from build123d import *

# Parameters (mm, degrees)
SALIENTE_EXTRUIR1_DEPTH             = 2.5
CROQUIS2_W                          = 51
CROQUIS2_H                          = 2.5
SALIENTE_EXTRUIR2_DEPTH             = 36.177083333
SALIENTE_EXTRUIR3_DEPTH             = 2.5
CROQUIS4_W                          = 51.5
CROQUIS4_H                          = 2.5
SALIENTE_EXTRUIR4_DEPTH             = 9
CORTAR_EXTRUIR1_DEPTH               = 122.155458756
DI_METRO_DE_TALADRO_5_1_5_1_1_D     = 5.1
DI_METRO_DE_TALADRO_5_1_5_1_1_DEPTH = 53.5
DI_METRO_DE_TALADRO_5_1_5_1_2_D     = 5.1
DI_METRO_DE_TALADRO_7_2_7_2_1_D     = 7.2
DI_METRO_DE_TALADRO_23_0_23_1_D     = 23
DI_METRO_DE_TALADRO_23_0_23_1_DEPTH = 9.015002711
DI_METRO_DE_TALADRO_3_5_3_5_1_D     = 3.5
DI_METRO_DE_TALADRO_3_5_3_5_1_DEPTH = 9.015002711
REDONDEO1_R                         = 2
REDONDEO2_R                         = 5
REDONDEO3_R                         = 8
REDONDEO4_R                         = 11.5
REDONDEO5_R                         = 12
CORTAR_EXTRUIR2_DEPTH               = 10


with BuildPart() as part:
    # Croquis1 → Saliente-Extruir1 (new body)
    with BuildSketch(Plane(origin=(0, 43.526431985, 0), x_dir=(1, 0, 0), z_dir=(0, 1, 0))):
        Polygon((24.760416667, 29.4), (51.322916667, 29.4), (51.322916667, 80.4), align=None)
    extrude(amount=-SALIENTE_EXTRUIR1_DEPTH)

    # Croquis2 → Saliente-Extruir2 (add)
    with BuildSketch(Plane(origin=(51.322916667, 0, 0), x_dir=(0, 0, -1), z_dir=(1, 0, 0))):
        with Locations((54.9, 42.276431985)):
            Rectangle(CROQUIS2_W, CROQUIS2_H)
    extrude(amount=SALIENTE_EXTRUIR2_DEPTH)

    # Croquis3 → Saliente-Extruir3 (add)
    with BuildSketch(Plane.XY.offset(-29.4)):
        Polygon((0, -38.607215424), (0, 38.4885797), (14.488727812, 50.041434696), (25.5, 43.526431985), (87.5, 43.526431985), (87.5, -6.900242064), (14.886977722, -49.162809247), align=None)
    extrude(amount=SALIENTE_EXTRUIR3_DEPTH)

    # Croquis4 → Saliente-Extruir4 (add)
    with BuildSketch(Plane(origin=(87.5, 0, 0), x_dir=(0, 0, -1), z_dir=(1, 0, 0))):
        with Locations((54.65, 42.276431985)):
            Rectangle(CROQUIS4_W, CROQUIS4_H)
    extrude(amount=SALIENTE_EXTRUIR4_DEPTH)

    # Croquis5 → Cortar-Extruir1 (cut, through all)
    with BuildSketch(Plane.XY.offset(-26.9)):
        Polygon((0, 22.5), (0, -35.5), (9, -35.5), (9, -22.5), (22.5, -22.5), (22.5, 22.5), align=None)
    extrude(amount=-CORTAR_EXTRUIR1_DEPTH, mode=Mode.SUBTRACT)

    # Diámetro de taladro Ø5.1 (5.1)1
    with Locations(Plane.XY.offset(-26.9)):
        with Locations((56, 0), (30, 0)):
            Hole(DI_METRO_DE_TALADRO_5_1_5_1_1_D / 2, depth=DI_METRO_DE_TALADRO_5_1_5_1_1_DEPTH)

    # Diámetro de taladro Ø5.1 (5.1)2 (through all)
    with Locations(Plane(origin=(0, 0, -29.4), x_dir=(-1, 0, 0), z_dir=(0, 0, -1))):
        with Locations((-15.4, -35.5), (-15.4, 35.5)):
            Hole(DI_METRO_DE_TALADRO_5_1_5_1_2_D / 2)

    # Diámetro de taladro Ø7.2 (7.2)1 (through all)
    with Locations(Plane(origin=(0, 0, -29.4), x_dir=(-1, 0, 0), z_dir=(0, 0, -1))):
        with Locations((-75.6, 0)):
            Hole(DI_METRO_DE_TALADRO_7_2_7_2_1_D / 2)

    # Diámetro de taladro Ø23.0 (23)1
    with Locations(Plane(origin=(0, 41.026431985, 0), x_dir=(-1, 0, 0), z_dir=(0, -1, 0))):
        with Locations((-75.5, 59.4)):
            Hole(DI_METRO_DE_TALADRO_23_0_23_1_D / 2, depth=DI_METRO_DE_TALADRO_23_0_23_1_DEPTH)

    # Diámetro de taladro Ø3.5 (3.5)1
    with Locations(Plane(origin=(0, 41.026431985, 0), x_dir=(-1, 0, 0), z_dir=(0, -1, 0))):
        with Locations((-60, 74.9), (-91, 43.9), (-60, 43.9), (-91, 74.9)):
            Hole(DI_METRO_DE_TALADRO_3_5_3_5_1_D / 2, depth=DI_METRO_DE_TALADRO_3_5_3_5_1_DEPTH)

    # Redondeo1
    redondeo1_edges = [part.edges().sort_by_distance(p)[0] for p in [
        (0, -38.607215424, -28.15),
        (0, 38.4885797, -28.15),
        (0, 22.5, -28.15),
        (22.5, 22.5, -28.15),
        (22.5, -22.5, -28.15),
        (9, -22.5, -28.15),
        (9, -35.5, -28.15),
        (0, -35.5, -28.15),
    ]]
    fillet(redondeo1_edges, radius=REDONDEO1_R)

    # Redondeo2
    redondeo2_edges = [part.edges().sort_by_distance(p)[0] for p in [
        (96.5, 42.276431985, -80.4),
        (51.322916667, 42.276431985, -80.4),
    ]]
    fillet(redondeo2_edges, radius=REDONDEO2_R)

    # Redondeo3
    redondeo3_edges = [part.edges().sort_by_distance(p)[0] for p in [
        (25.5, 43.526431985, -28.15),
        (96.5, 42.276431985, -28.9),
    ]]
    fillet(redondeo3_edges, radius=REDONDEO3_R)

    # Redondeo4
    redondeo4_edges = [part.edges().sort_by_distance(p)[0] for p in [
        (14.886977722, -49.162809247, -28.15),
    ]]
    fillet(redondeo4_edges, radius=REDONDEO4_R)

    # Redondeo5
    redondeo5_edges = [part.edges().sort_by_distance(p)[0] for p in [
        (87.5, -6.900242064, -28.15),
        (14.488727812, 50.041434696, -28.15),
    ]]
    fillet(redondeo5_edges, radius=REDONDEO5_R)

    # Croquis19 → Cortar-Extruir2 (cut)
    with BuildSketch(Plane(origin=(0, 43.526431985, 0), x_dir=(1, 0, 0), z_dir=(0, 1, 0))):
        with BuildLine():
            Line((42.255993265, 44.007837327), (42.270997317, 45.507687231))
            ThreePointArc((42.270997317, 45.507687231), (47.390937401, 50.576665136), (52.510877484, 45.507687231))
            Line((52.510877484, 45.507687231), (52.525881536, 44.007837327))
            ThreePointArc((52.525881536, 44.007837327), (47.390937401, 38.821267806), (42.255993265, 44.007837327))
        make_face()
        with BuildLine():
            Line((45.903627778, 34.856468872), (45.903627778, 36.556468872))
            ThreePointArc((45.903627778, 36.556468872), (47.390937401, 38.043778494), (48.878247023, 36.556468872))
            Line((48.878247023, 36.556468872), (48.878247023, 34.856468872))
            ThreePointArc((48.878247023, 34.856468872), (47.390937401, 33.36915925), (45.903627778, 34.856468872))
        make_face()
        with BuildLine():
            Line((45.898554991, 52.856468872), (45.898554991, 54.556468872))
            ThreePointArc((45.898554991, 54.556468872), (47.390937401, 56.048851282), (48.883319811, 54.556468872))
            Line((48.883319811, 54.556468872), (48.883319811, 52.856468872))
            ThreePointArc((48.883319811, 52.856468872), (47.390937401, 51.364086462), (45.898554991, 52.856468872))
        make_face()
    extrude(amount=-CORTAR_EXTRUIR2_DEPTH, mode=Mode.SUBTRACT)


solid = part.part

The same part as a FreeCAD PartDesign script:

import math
import FreeCAD as App
import Part
import Sketcher


def edges_at(feature, points):
    """Names of the edges that pass closest to the given points."""
    edges = feature.Shape.Edges
    near = lambda p: min(range(len(edges)), key=lambda i: edges[i].distToShape(Part.Vertex(*p))[0])
    return sorted({f"Edge{near(p) + 1}" for p in points})

doc = App.newDocument("Part")
body = doc.addObject("PartDesign::Body", "Body")

# Sketch on XZ plane
sketch1 = body.newObject("Sketcher::SketchObject", "Sketch")
sketch1.AttachmentSupport = (doc.getObject("XZ_Plane"), [""])
sketch1.MapMode = "FlatFace"
sketch1.AttachmentOffset = App.Placement(App.Vector(0, 0, -43.526432), App.Rotation())
sketch1.addGeometry(Part.LineSegment(App.Vector(25, -29, 0), App.Vector(51, -29, 0)), False)
sketch1.addGeometry(Part.LineSegment(App.Vector(51, -29, 0), App.Vector(51, -80, 0)), False)
sketch1.addGeometry(Part.LineSegment(App.Vector(51, -80, 0), App.Vector(25, -29, 0)), False)
sketch1.addConstraint(Sketcher.Constraint("Coincident", 0, 2, 1, 1))
sketch1.addConstraint(Sketcher.Constraint("Coincident", 1, 2, 2, 1))
sketch1.addConstraint(Sketcher.Constraint("Coincident", 2, 2, 0, 1))
sketch1.addConstraint(Sketcher.Constraint("Horizontal", 0))
sketch1.addConstraint(Sketcher.Constraint("Vertical", 1))
sketch1.addConstraint(Sketcher.Constraint("DistanceY", 1, 2, 1, 1, 51.0))
sketch1.addConstraint(Sketcher.Constraint("DistanceY", 0, 2, -1, 1, 29.4))
sketch1.addConstraint(Sketcher.Constraint("DistanceX", 0, 1, 0, 2, 26.5625))
sketch1.addConstraint(Sketcher.Constraint("DistanceX", -1, 1, 0, 2, 51.322917))
pad1 = body.newObject("PartDesign::Pad", "Pad")
pad1.Profile = sketch1
pad1.Length = 2.5

# Sketch on YZ plane
sketch2 = body.newObject("Sketcher::SketchObject", "Sketch001")
sketch2.AttachmentSupport = (doc.getObject("YZ_Plane"), [""])
sketch2.MapMode = "FlatFace"
sketch2.AttachmentOffset = App.Placement(App.Vector(0, 0, 51.322917), App.Rotation())
sketch2.addGeometry(Part.LineSegment(App.Vector(43.5, -29.4, 0), App.Vector(41, -29.4, 0)), False)
sketch2.addGeometry(Part.LineSegment(App.Vector(41, -29.4, 0), App.Vector(41, -80.4, 0)), False)
sketch2.addGeometry(Part.LineSegment(App.Vector(41, -80.4, 0), App.Vector(43.5, -80.4, 0)), False)
sketch2.addGeometry(Part.LineSegment(App.Vector(43.5, -80.4, 0), App.Vector(43.5, -29.4, 0)), False)
sketch2.addConstraint(Sketcher.Constraint("Coincident", 0, 2, 1, 1))
sketch2.addConstraint(Sketcher.Constraint("Coincident", 1, 2, 2, 1))
sketch2.addConstraint(Sketcher.Constraint("Coincident", 2, 2, 3, 1))
sketch2.addConstraint(Sketcher.Constraint("Coincident", 3, 2, 0, 1))
sketch2.addConstraint(Sketcher.Constraint("Horizontal", 0))
sketch2.addConstraint(Sketcher.Constraint("Vertical", 1))
sketch2.addConstraint(Sketcher.Constraint("Horizontal", 2))
sketch2.addConstraint(Sketcher.Constraint("Vertical", 3))
sketch2.addConstraint(Sketcher.Constraint("DistanceY", 1, 2, 1, 1, 51.0))
sketch2.addConstraint(Sketcher.Constraint("DistanceX", 0, 2, 0, 1, 2.5))
sketch2.addConstraint(Sketcher.Constraint("DistanceY", 0, 2, -1, 1, 29.4))
sketch2.addConstraint(Sketcher.Constraint("DistanceX", -1, 1, 0, 2, 41.026432))
pad2 = body.newObject("PartDesign::Pad", "Pad001")
pad2.Profile = sketch2
pad2.Length = 36.177083

# Sketch on XY plane
sketch3 = body.newObject("Sketcher::SketchObject", "Sketch002")
sketch3.AttachmentSupport = (doc.getObject("XY_Plane"), [""])
sketch3.MapMode = "FlatFace"
sketch3.AttachmentOffset = App.Placement(App.Vector(0, 0, -29.4), App.Rotation())
sketch3.addGeometry(Part.LineSegment(App.Vector(0, 38, 0), App.Vector(0, -39, 0)), False)
sketch3.addGeometry(Part.LineSegment(App.Vector(0, -39, 0), App.Vector(15, -49, 0)), False)
sketch3.addGeometry(Part.LineSegment(App.Vector(15, -49, 0), App.Vector(88, -7, 0)), False)
sketch3.addGeometry(Part.LineSegment(App.Vector(88, -7, 0), App.Vector(88, 44, 0)), False)
sketch3.addGeometry(Part.LineSegment(App.Vector(88, 44, 0), App.Vector(26, 44, 0)), False)
sketch3.addGeometry(Part.LineSegment(App.Vector(26, 44, 0), App.Vector(14, 50, 0)), False)
sketch3.addGeometry(Part.LineSegment(App.Vector(14, 50, 0), App.Vector(0, 38, 0)), False)
sketch3.addConstraint(Sketcher.Constraint("Coincident", 0, 2, 1, 1))
sketch3.addConstraint(Sketcher.Constraint("Coincident", 1, 2, 2, 1))
sketch3.addConstraint(Sketcher.Constraint("Coincident", 2, 2, 3, 1))
sketch3.addConstraint(Sketcher.Constraint("Coincident", 3, 2, 4, 1))
sketch3.addConstraint(Sketcher.Constraint("Coincident", 4, 2, 5, 1))
sketch3.addConstraint(Sketcher.Constraint("Coincident", 5, 2, 6, 1))
sketch3.addConstraint(Sketcher.Constraint("Coincident", 6, 2, 0, 1))
sketch3.addConstraint(Sketcher.Constraint("Vertical", 0))
sketch3.addConstraint(Sketcher.Constraint("Vertical", 3))
sketch3.addConstraint(Sketcher.Constraint("Horizontal", 4))
sketch3.addConstraint(Sketcher.Constraint("PointOnObject", 0, 2, -2))
sketch3.addConstraint(Sketcher.Constraint("DistanceX", 4, 2, 4, 1, 62.0))
sketch3.addConstraint(Sketcher.Constraint("DistanceX", -1, 1, 2, 2, 87.5))
sketch3.addConstraint(Sketcher.Constraint("Distance", 2, 84.01652))
sketch3.addConstraint(Sketcher.Constraint("Distance", 5, 12.794271))
sketch3.addConstraint(Sketcher.Constraint("Distance", 6, 18.530831))
sketch3.addConstraint(Sketcher.Constraint("DistanceY", 0, 2, 0, 1, 77.095795))
sketch3.addConstraint(Sketcher.Constraint("DistanceY", 3, 1, 3, 2, 50.426674))
sketch3.addConstraint(Sketcher.Constraint("DistanceY", 1, 2, -1, 1, 49.162809))
sketch3.addConstraint(Sketcher.Constraint("DistanceY", -1, 1, 3, 2, 43.526432))
sketch3.addConstraint(Sketcher.Constraint("DistanceY", -1, 1, 6, 2, 38.48858))
pad3 = body.newObject("PartDesign::Pad", "Pad002")
pad3.Profile = sketch3
pad3.Length = 2.5

# Sketch on YZ plane
sketch4 = body.newObject("Sketcher::SketchObject", "Sketch003")
sketch4.AttachmentSupport = (doc.getObject("YZ_Plane"), [""])
sketch4.MapMode = "FlatFace"
sketch4.AttachmentOffset = App.Placement(App.Vector(0, 0, 87.5), App.Rotation())
sketch4.addGeometry(Part.LineSegment(App.Vector(43.5, -28.9, 0), App.Vector(41, -28.9, 0)), False)
sketch4.addGeometry(Part.LineSegment(App.Vector(41, -28.9, 0), App.Vector(41, -80.4, 0)), False)
sketch4.addGeometry(Part.LineSegment(App.Vector(41, -80.4, 0), App.Vector(43.5, -80.4, 0)), False)
sketch4.addGeometry(Part.LineSegment(App.Vector(43.5, -80.4, 0), App.Vector(43.5, -28.9, 0)), False)
sketch4.addConstraint(Sketcher.Constraint("Coincident", 0, 2, 1, 1))
sketch4.addConstraint(Sketcher.Constraint("Coincident", 1, 2, 2, 1))
sketch4.addConstraint(Sketcher.Constraint("Coincident", 2, 2, 3, 1))
sketch4.addConstraint(Sketcher.Constraint("Coincident", 3, 2, 0, 1))
sketch4.addConstraint(Sketcher.Constraint("Horizontal", 0))
sketch4.addConstraint(Sketcher.Constraint("Vertical", 1))
sketch4.addConstraint(Sketcher.Constraint("Horizontal", 2))
sketch4.addConstraint(Sketcher.Constraint("Vertical", 3))
sketch4.addConstraint(Sketcher.Constraint("DistanceX", 0, 2, 0, 1, 2.5))
sketch4.addConstraint(Sketcher.Constraint("DistanceY", 1, 2, 1, 1, 51.5))
sketch4.addConstraint(Sketcher.Constraint("DistanceY", 0, 2, -1, 1, 28.9))
sketch4.addConstraint(Sketcher.Constraint("DistanceX", -1, 1, 0, 2, 41.026432))
pad4 = body.newObject("PartDesign::Pad", "Pad003")
pad4.Profile = sketch4
pad4.Length = 9

# Sketch on XY plane
sketch5 = body.newObject("Sketcher::SketchObject", "Sketch004")
sketch5.AttachmentSupport = (doc.getObject("XY_Plane"), [""])
sketch5.MapMode = "FlatFace"
sketch5.AttachmentOffset = App.Placement(App.Vector(0, 0, -26.9), App.Rotation())
sketch5.addGeometry(Part.LineSegment(App.Vector(0, 22, 0), App.Vector(0, -36, 0)), False)
sketch5.addGeometry(Part.LineSegment(App.Vector(0, -36, 0), App.Vector(9, -36, 0)), False)
sketch5.addGeometry(Part.LineSegment(App.Vector(9, -36, 0), App.Vector(9, -22, 0)), False)
sketch5.addGeometry(Part.LineSegment(App.Vector(9, -22, 0), App.Vector(22, -22, 0)), False)
sketch5.addGeometry(Part.LineSegment(App.Vector(22, -22, 0), App.Vector(22, 22, 0)), False)
sketch5.addGeometry(Part.LineSegment(App.Vector(22, 22, 0), App.Vector(0, 22, 0)), False)
sketch5.addConstraint(Sketcher.Constraint("Coincident", 0, 2, 1, 1))
sketch5.addConstraint(Sketcher.Constraint("Coincident", 1, 2, 2, 1))
sketch5.addConstraint(Sketcher.Constraint("Coincident", 2, 2, 3, 1))
sketch5.addConstraint(Sketcher.Constraint("Coincident", 3, 2, 4, 1))
sketch5.addConstraint(Sketcher.Constraint("Coincident", 4, 2, 5, 1))
sketch5.addConstraint(Sketcher.Constraint("Coincident", 5, 2, 0, 1))
sketch5.addConstraint(Sketcher.Constraint("Vertical", 0))
sketch5.addConstraint(Sketcher.Constraint("Horizontal", 1))
sketch5.addConstraint(Sketcher.Constraint("Vertical", 2))
sketch5.addConstraint(Sketcher.Constraint("Horizontal", 3))
sketch5.addConstraint(Sketcher.Constraint("Vertical", 4))
sketch5.addConstraint(Sketcher.Constraint("Horizontal", 5))
sketch5.addConstraint(Sketcher.Constraint("PointOnObject", 0, 2, -2))
sketch5.addConstraint(Sketcher.Constraint("DistanceX", 1, 1, 1, 2, 9.0))
sketch5.addConstraint(Sketcher.Constraint("DistanceY", 0, 2, 0, 1, 58.0))
sketch5.addConstraint(Sketcher.Constraint("DistanceY", 2, 1, 2, 2, 13.0))
sketch5.addConstraint(Sketcher.Constraint("DistanceX", 3, 1, 3, 2, 13.5))
sketch5.addConstraint(Sketcher.Constraint("DistanceY", 0, 2, -1, 1, 35.5))
pocket1 = body.newObject("PartDesign::Pocket", "Pocket")
pocket1.Profile = sketch5
pocket1.Type = "ThroughAll"

# Sketch on XY plane
sketch6 = body.newObject("Sketcher::SketchObject", "Sketch005")
sketch6.AttachmentSupport = (doc.getObject("XY_Plane"), [""])
sketch6.MapMode = "FlatFace"
sketch6.AttachmentOffset = App.Placement(App.Vector(0, 0, -26.9), App.Rotation())
sketch6.addGeometry(Part.Circle(App.Vector(56, 0, 0), App.Vector(0, 0, 1), 2.5), False)
sketch6.addGeometry(Part.Circle(App.Vector(30, 0, 0), App.Vector(0, 0, 1), 2.5), False)
sketch6.addConstraint(Sketcher.Constraint("Equal", 0, 1))
sketch6.addConstraint(Sketcher.Constraint("PointOnObject", 0, 3, -1))
sketch6.addConstraint(Sketcher.Constraint("PointOnObject", 1, 3, -1))
sketch6.addConstraint(Sketcher.Constraint("Diameter", 0, 5.1))
sketch6.addConstraint(Sketcher.Constraint("DistanceX", -1, 1, 0, 3, 56.0))
sketch6.addConstraint(Sketcher.Constraint("DistanceX", -1, 1, 1, 3, 30.0))
doc.recompute()
hole = body.newObject("PartDesign::Hole", "Hole")
hole.Profile = sketch6
hole.ThreadType = "None"
hole.Diameter = 5.1
hole.DepthType = "Dimension"
hole.Depth = 53.5
hole.DrillPoint = "Flat"

# Sketch on XY plane
sketch7 = body.newObject("Sketcher::SketchObject", "Sketch006")
sketch7.AttachmentSupport = (doc.getObject("XY_Plane"), [""])
sketch7.MapMode = "FlatFace"
sketch7.AttachmentOffset = App.Placement(App.Vector(0, 0, -29.4), App.Rotation())
sketch7.addGeometry(Part.Circle(App.Vector(15.4, -35.5, 0), App.Vector(0, 0, 1), 2.5), False)
sketch7.addGeometry(Part.Circle(App.Vector(15.4, 35.5, 0), App.Vector(0, 0, 1), 2.5), False)
sketch7.addConstraint(Sketcher.Constraint("Equal", 0, 1))
sketch7.addConstraint(Sketcher.Constraint("Symmetric", 0, 3, 1, 3, -1))
sketch7.addConstraint(Sketcher.Constraint("Diameter", 0, 5.1))
sketch7.addConstraint(Sketcher.Constraint("DistanceY", 0, 3, 1, 3, 71.0))
sketch7.addConstraint(Sketcher.Constraint("DistanceX", -1, 1, 0, 3, 15.4))
doc.recompute()
hole2 = body.newObject("PartDesign::Hole", "Hole001")
hole2.Profile = sketch7
hole2.ThreadType = "None"
hole2.Diameter = 5.1
hole2.DepthType = "ThroughAll"
hole2.Reversed = True

# Sketch on XY plane
sketch8 = body.newObject("Sketcher::SketchObject", "Sketch007")
sketch8.AttachmentSupport = (doc.getObject("XY_Plane"), [""])
sketch8.MapMode = "FlatFace"
sketch8.AttachmentOffset = App.Placement(App.Vector(0, 0, -29.4), App.Rotation())
sketch8.addGeometry(Part.Circle(App.Vector(75.6, 0, 0), App.Vector(0, 0, 1), 3.6), False)
sketch8.addConstraint(Sketcher.Constraint("PointOnObject", 0, 3, -1))
sketch8.addConstraint(Sketcher.Constraint("Diameter", 0, 7.2))
sketch8.addConstraint(Sketcher.Constraint("DistanceX", -1, 1, 0, 3, 75.6))
doc.recompute()
hole3 = body.newObject("PartDesign::Hole", "Hole002")
hole3.Profile = sketch8
hole3.ThreadType = "None"
hole3.Diameter = 7.2
hole3.DepthType = "ThroughAll"
hole3.Reversed = True

# Sketch on XZ plane
sketch9 = body.newObject("Sketcher::SketchObject", "Sketch008")
sketch9.AttachmentSupport = (doc.getObject("XZ_Plane"), [""])
sketch9.MapMode = "FlatFace"
sketch9.AttachmentOffset = App.Placement(App.Vector(0, 0, -41.026432), App.Rotation())
sketch9.addGeometry(Part.Circle(App.Vector(76, -59, 0), App.Vector(0, 0, 1), 12), False)
sketch9.addConstraint(Sketcher.Constraint("Diameter", 0, 23.0))
sketch9.addConstraint(Sketcher.Constraint("DistanceX", -1, 1, 0, 3, 75.5))
sketch9.addConstraint(Sketcher.Constraint("DistanceY", 0, 3, -1, 1, 59.4))
doc.recompute()
hole4 = body.newObject("PartDesign::Hole", "Hole003")
hole4.Profile = sketch9
hole4.ThreadType = "None"
hole4.Diameter = 23
hole4.DepthType = "Dimension"
hole4.Depth = 9.015003
hole4.DrillPoint = "Flat"

# Sketch on XZ plane
sketch10 = body.newObject("Sketcher::SketchObject", "Sketch009")
sketch10.AttachmentSupport = (doc.getObject("XZ_Plane"), [""])
sketch10.MapMode = "FlatFace"
sketch10.AttachmentOffset = App.Placement(App.Vector(0, 0, -41.026432), App.Rotation())
sketch10.addGeometry(Part.Circle(App.Vector(60, -74.9, 0), App.Vector(0, 0, 1), 1.8), False)
sketch10.addGeometry(Part.Circle(App.Vector(91, -43.9, 0), App.Vector(0, 0, 1), 1.8), False)
sketch10.addGeometry(Part.Circle(App.Vector(60, -43.9, 0), App.Vector(0, 0, 1), 1.8), False)
sketch10.addGeometry(Part.Circle(App.Vector(91, -74.9, 0), App.Vector(0, 0, 1), 1.8), False)
sketch10.addConstraint(Sketcher.Constraint("Equal", 0, 1))
sketch10.addConstraint(Sketcher.Constraint("Equal", 1, 2))
sketch10.addConstraint(Sketcher.Constraint("Equal", 2, 3))
sketch10.addConstraint(Sketcher.Constraint("Horizontal", 1, 3, 2, 3))
sketch10.addConstraint(Sketcher.Constraint("Horizontal", 0, 3, 3, 3))
sketch10.addConstraint(Sketcher.Constraint("Vertical", 0, 3, 2, 3))
sketch10.addConstraint(Sketcher.Constraint("Vertical", 1, 3, 3, 3))
sketch10.addConstraint(Sketcher.Constraint("Diameter", 0, 3.5))
sketch10.addConstraint(Sketcher.Constraint("DistanceX", -1, 1, 0, 3, 60.0))
sketch10.addConstraint(Sketcher.Constraint("DistanceX", -1, 1, 1, 3, 91.0))
sketch10.addConstraint(Sketcher.Constraint("DistanceY", 0, 3, 1, 3, 31.0))
sketch10.addConstraint(Sketcher.Constraint("DistanceY", 0, 3, -1, 1, 74.9))
doc.recompute()
hole5 = body.newObject("PartDesign::Hole", "Hole004")
hole5.Profile = sketch10
hole5.ThreadType = "None"
hole5.Diameter = 3.5
hole5.DepthType = "Dimension"
hole5.Depth = 9.015003
hole5.DrillPoint = "Flat"
doc.recompute()

fillet = body.newObject("PartDesign::Fillet", "Fillet")
fillet.Base = (hole5, edges_at(hole5, [
    (0, -38.607, -28.15),
    (0, 38.489, -28.15),
    (0, 22.5, -28.15),
    (22.5, 22.5, -28.15),
    (22.5, -22.5, -28.15),
    (9, -22.5, -28.15),
    (9, -35.5, -28.15),
    (0, -35.5, -28.15),
]))
fillet.Radius = 2
doc.recompute()

fillet2 = body.newObject("PartDesign::Fillet", "Fillet001")
fillet2.Base = (fillet, edges_at(fillet, [(96.5, 42.276, -80.4), (51.323, 42.276, -80.4)]))
fillet2.Radius = 5
doc.recompute()

fillet3 = body.newObject("PartDesign::Fillet", "Fillet002")
fillet3.Base = (fillet2, edges_at(fillet2, [(25.5, 43.526, -28.15), (96.5, 42.276, -28.9)]))
fillet3.Radius = 8
doc.recompute()

fillet4 = body.newObject("PartDesign::Fillet", "Fillet003")
fillet4.Base = (fillet3, edges_at(fillet3, [(14.887, -49.163, -28.15)]))
fillet4.Radius = 11.5
doc.recompute()

fillet5 = body.newObject("PartDesign::Fillet", "Fillet004")
fillet5.Base = (fillet4, edges_at(fillet4, [(87.5, -6.9, -28.15), (14.489, 50.041, -28.15)]))
fillet5.Radius = 12

# Sketch on XZ plane
sketch11 = body.newObject("Sketcher::SketchObject", "Sketch010")
sketch11.AttachmentSupport = (doc.getObject("XZ_Plane"), [""])
sketch11.MapMode = "FlatFace"
sketch11.AttachmentOffset = App.Placement(App.Vector(0, 0, -43.526432), App.Rotation())
sketch11.addGeometry(Part.LineSegment(App.Vector(42.3, -45.5, 0), App.Vector(42.3, -44, 0)), False)
sketch11.addGeometry(Part.ArcOfCircle(Part.Circle(App.Vector(47.4, -44, 0), App.Vector(0, 0, 1), 5.1), math.radians(-1), math.radians(181)), False)
sketch11.addGeometry(Part.LineSegment(App.Vector(52.5, -44, 0), App.Vector(52.5, -45.5, 0)), False)
sketch11.addGeometry(Part.ArcOfCircle(Part.Circle(App.Vector(47.4, -45.5, 0), App.Vector(0, 0, 1), 5.1), math.radians(-179), math.radians(-1)), False)
sketch11.addGeometry(Part.LineSegment(App.Vector(45.9, -36.6, 0), App.Vector(45.9, -34.9, 0)), False)
sketch11.addGeometry(Part.ArcOfCircle(Part.Circle(App.Vector(47.4, -34.9, 0), App.Vector(0, 0, 1), 1.5), math.radians(0), math.radians(180)), False)
sketch11.addGeometry(Part.LineSegment(App.Vector(48.9, -34.9, 0), App.Vector(48.9, -36.6, 0)), False)
sketch11.addGeometry(Part.ArcOfCircle(Part.Circle(App.Vector(47.4, -36.6, 0), App.Vector(0, 0, 1), 1.5), math.radians(180), math.radians(360)), False)
sketch11.addGeometry(Part.LineSegment(App.Vector(45.9, -54.6, 0), App.Vector(45.9, -52.9, 0)), False)
sketch11.addGeometry(Part.ArcOfCircle(Part.Circle(App.Vector(47.4, -52.9, 0), App.Vector(0, 0, 1), 1.5), math.radians(0), math.radians(180)), False)
sketch11.addGeometry(Part.LineSegment(App.Vector(48.9, -52.9, 0), App.Vector(48.9, -54.6, 0)), False)
sketch11.addGeometry(Part.ArcOfCircle(Part.Circle(App.Vector(47.4, -54.6, 0), App.Vector(0, 0, 1), 1.5), math.radians(180), math.radians(360)), False)
sketch11.addConstraint(Sketcher.Constraint("Tangent", 0, 2, 1, 2))
sketch11.addConstraint(Sketcher.Constraint("Tangent", 1, 1, 2, 1))
sketch11.addConstraint(Sketcher.Constraint("Tangent", 2, 2, 3, 2))
sketch11.addConstraint(Sketcher.Constraint("Tangent", 3, 1, 0, 1))
sketch11.addConstraint(Sketcher.Constraint("Tangent", 4, 2, 5, 2))
sketch11.addConstraint(Sketcher.Constraint("Tangent", 5, 1, 6, 1))
sketch11.addConstraint(Sketcher.Constraint("Tangent", 6, 2, 7, 2))
sketch11.addConstraint(Sketcher.Constraint("Tangent", 7, 1, 4, 1))
sketch11.addConstraint(Sketcher.Constraint("Tangent", 8, 2, 9, 2))
sketch11.addConstraint(Sketcher.Constraint("Tangent", 9, 1, 10, 1))
sketch11.addConstraint(Sketcher.Constraint("Tangent", 10, 2, 11, 2))
sketch11.addConstraint(Sketcher.Constraint("Tangent", 11, 1, 8, 1))
sketch11.addConstraint(Sketcher.Constraint("Vertical", 4))
sketch11.addConstraint(Sketcher.Constraint("Vertical", 6))
sketch11.addConstraint(Sketcher.Constraint("Vertical", 8))
sketch11.addConstraint(Sketcher.Constraint("Vertical", 10))
sketch11.addConstraint(Sketcher.Constraint("Horizontal", 0, 2, 1, 1))
sketch11.addConstraint(Sketcher.Constraint("Vertical", 3, 3, 5, 3))
sketch11.addConstraint(Sketcher.Constraint("Vertical", 7, 3, 9, 3))
sketch11.addConstraint(Sketcher.Constraint("Equal", 6, 8))
sketch11.addConstraint(Sketcher.Constraint("DistanceY", 4, 1, 4, 2, 1.7))
sketch11.addConstraint(Sketcher.Constraint("DistanceY", 9, 3, 5, 3, 18.0))
sketch11.addConstraint(Sketcher.Constraint("Radius", 1, 5.135201))
sketch11.addConstraint(Sketcher.Constraint("DistanceY", 3, 3, 1, 3, 1.5))
sketch11.addConstraint(Sketcher.Constraint("DistanceY", 1, 3, 5, 3, 9.1))
sketch11.addConstraint(Sketcher.Constraint("Radius", 5, 1.48731))
sketch11.addConstraint(Sketcher.Constraint("Radius", 3, 5.120196))
sketch11.addConstraint(Sketcher.Constraint("Radius", 9, 1.492382))
sketch11.addConstraint(Sketcher.Constraint("DistanceY", 1, 3, -1, 1, 43.956469))
sketch11.addConstraint(Sketcher.Constraint("DistanceX", -1, 1, 1, 1, 52.525882))
pocket2 = body.newObject("PartDesign::Pocket", "Pocket001")
pocket2.Profile = sketch11
pocket2.Length = 10
pocket2.Reversed = True

doc.recompute()
